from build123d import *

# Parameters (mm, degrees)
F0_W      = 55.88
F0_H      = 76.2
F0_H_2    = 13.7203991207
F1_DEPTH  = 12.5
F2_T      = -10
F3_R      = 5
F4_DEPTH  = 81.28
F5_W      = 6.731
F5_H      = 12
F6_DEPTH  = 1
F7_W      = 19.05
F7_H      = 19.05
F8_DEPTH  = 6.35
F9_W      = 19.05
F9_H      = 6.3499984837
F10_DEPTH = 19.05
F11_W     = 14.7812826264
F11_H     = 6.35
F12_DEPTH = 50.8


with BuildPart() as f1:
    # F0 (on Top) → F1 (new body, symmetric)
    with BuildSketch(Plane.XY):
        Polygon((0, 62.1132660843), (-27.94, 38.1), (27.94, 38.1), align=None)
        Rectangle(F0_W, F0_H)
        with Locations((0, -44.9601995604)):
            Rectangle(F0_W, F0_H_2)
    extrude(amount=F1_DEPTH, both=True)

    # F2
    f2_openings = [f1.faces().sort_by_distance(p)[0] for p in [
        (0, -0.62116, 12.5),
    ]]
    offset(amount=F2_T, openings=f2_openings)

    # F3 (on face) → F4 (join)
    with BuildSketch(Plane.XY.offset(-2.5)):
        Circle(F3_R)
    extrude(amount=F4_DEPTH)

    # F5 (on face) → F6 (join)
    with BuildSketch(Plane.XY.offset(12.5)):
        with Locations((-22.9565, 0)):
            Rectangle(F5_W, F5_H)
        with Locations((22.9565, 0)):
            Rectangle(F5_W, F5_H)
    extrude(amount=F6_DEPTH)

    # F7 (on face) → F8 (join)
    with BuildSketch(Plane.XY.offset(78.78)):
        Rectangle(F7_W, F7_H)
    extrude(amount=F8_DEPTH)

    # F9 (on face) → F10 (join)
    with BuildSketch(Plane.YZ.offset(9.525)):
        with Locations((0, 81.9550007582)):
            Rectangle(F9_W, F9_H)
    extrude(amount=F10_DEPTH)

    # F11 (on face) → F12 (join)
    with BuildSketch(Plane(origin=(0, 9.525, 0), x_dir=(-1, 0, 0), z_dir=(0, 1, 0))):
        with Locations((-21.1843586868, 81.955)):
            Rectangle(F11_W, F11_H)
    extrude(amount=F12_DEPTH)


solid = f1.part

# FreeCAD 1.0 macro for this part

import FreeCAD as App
import Part
import Sketcher
Q = App.Units.Quantity


def faces_at(feature, points):
    """Names of the faces that lie closest to the given points."""
    faces = feature.Shape.Faces
    near = lambda p: min(range(len(faces)), key=lambda i: faces[i].distToShape(Part.Vertex(*p))[0])
    return sorted({f"Face{near(p) + 1}" for p in points})


def add_polygon(sketch, points):
    """Adds a closed chain of lines whose ends are joined by coincident constraints."""
    first, n = sketch.GeometryCount, len(points)
    for a, b in zip(points, points[1:] + points[:1]):
        sketch.addGeometry(Part.LineSegment(App.Vector(*a, 0), App.Vector(*b, 0)), False)
    for i in range(n):
        sketch.addConstraint(Sketcher.Constraint("Coincident", first + i, 2, first + (i + 1) % n, 1))

doc = App.newDocument("Part")
body = doc.addObject("PartDesign::Body", "Body")

# Sketch on XY plane
sketch1 = doc.addObject("Sketcher::SketchObject", "Sketch")
body.addObject(sketch1)
sketch1.AttachmentSupport = (doc.XY_Plane, [""])
sketch1.MapMode = "FlatFace"
add_polygon(sketch1, [(0, 62.113266), (-27.94, 38.1), (-27.94, -51.820399), (27.94, -51.820399), (27.94, 38.1)])  # lines 0-4
sketch1.addConstraint([
    Sketcher.Constraint("Vertical", 1),
    Sketcher.Constraint("Horizontal", 2),
    Sketcher.Constraint("Vertical", 3),
    Sketcher.Constraint("Symmetric", 0, 2, 3, 2, -2),
    Sketcher.Constraint("PointOnObject", 4, 2, -2),
    Sketcher.Constraint("DistanceX", 2, 1, 2, 2, Q("2.2 in")),
    Sketcher.Constraint("DistanceY", -1, 1, 0, 2, Q("1.5 in")),
    Sketcher.Constraint("DistanceY", 1, 2, 1, 1, 89.920399),
    Sketcher.Constraint("Distance", 0, 36.841289),
])
pad1 = doc.addObject("PartDesign::Pad", "Pad")
body.addObject(pad1)
pad1.Profile = sketch1
pad1.Length = 25
pad1.Midplane = True
doc.recompute()

thickness = doc.addObject("PartDesign::Thickness", "Thickness")
body.addObject(thickness)
thickness.Base = (pad1, faces_at(pad1, [(0, 5.146, 12.5)]))
thickness.Value = 10
thickness.Reversed = True
thickness.Join = "Arc"

# Sketch on XY plane
sketch2 = doc.addObject("Sketcher::SketchObject", "Sketch001")
body.addObject(sketch2)
sketch2.AttachmentSupport = (doc.XY_Plane, [""])
sketch2.MapMode = "FlatFace"
sketch2.AttachmentOffset = App.Placement(App.Vector(0, 0, -2.5), App.Rotation())
sketch2.addGeometry(Part.Circle(App.Vector(0, 0, 0), App.Vector(0, 0, 1), 5), False)
sketch2.addConstraint([
    Sketcher.Constraint("Coincident", 0, 3, -1, 1),
    Sketcher.Constraint("Diameter", 0, 10.0),
])
pad2 = doc.addObject("PartDesign::Pad", "Pad001")
body.addObject(pad2)
pad2.Profile = sketch2
pad2.Length = Q("3.2 in")

# Sketch on XY plane
sketch3 = doc.addObject("Sketcher::SketchObject", "Sketch002")
body.addObject(sketch3)
sketch3.AttachmentSupport = (doc.XY_Plane, [""])
sketch3.MapMode = "FlatFace"
sketch3.AttachmentOffset = App.Placement(App.Vector(0, 0, 12.5), App.Rotation())
add_polygon(sketch3, [(-26.322, 6), (-26.322, -6), (-19.591, -6), (-19.591, 6)])  # lines 0-3
add_polygon(sketch3, [(19.591, 6), (19.591, -6), (26.322, -6), (26.322, 6)])  # lines 4-7
sketch3.addConstraint([
    Sketcher.Constraint("Vertical", 0),
    Sketcher.Constraint("Horizontal", 1),
    Sketcher.Constraint("Vertical", 2),
    Sketcher.Constraint("Horizontal", 3),
    Sketcher.Constraint("Vertical", 4),
    Sketcher.Constraint("Horizontal", 5),
    Sketcher.Constraint("Vertical", 6),
    Sketcher.Constraint("Horizontal", 7),
    Sketcher.Constraint("Symmetric", 2, 2, 4, 2, -1, 1),
    Sketcher.Constraint("Symmetric", 0, 2, 6, 2, -1, 1),
    Sketcher.Constraint("Horizontal", 1, 2, 4, 2),
    Sketcher.Constraint("DistanceX", 1, 1, 1, 2, Q("0.265 in")),
    Sketcher.Constraint("DistanceY", 0, 2, 0, 1, 12.0),
    Sketcher.Constraint("DistanceX", 0, 2, -1, 1, 26.322),
])
pad3 = doc.addObject("PartDesign::Pad", "Pad002")
body.addObject(pad3)
pad3.Profile = sketch3
pad3.Length = 1

# Sketch on XY plane
sketch4 = doc.addObject("Sketcher::SketchObject", "Sketch003")
body.addObject(sketch4)
sketch4.AttachmentSupport = (doc.XY_Plane, [""])
sketch4.MapMode = "FlatFace"
sketch4.AttachmentOffset = App.Placement(App.Vector(0, 0, 78.78), App.Rotation())
add_polygon(sketch4, [(-9.525, 9.525), (-9.525, -9.525), (9.525, -9.525), (9.525, 9.525)])  # lines 0-3
sketch4.addConstraint([
    Sketcher.Constraint("Vertical", 0),
    Sketcher.Constraint("Horizontal", 1),
    Sketcher.Constraint("Vertical", 2),
    Sketcher.Constraint("Horizontal", 3),
    Sketcher.Constraint("Symmetric", 0, 2, 2, 2, -1, 1),
    Sketcher.Constraint("Equal", 3, 0),
    Sketcher.Constraint("DistanceX", 1, 1, 1, 2, Q("0.75 in")),
])
pad4 = doc.addObject("PartDesign::Pad", "Pad003")
body.addObject(pad4)
pad4.Profile = sketch4
pad4.Length = Q("0.25 in")

# Sketch on YZ plane
sketch5 = doc.addObject("Sketcher::SketchObject", "Sketch004")
body.addObject(sketch5)
sketch5.AttachmentSupport = (doc.YZ_Plane, [""])
sketch5.MapMode = "FlatFace"
sketch5.AttachmentOffset = App.Placement(App.Vector(0, 0, 0.375 * 25.4), App.Rotation())
add_polygon(sketch5, [(-9.525, 85.13), (-9.525, 78.780002), (9.525, 78.780002), (9.525, 85.13)])  # lines 0-3
sketch5.addConstraint([
    Sketcher.Constraint("Vertical", 0),
    Sketcher.Constraint("Horizontal", 1),
    Sketcher.Constraint("Vertical", 2),
    Sketcher.Constraint("Horizontal", 3),
    Sketcher.Constraint("DistanceX", 1, 1, 1, 2, Q("0.75 in")),
    Sketcher.Constraint("DistanceY", 0, 2, 0, 1, Q("0.2499999 in")),
    Sketcher.Constraint("DistanceX", 0, 2, -1, 1, Q("0.375 in")),
    Sketcher.Constraint("DistanceY", -1, 1, 0, 2, 78.780002),
])
pad5 = doc.addObject("PartDesign::Pad", "Pad004")
body.addObject(pad5)
pad5.Profile = sketch5
pad5.Length = Q("0.75 in")

# Sketch on XZ plane
sketch6 = doc.addObject("Sketcher::SketchObject", "Sketch005")
body.addObject(sketch6)
sketch6.AttachmentSupport = (doc.XZ_Plane, [""])
sketch6.MapMode = "FlatFace"
sketch6.AttachmentOffset = App.Placement(App.Vector(0, 0, -0.375 * 25.4), App.Rotation())
add_polygon(sketch6, [(28.575, 85.13), (28.575, 78.78), (13.793717, 78.78), (13.793717, 85.13)])  # lines 0-3
sketch6.addConstraint([
    Sketcher.Constraint("Vertical", 0),
    Sketcher.Constraint("Horizontal", 1),
    Sketcher.Constraint("Vertical", 2),
    Sketcher.Constraint("Horizontal", 3),
    Sketcher.Constraint("DistanceY", 0, 2, 0, 1, Q("0.25 in")),
    Sketcher.Constraint("DistanceX", -1, 1, 0, 2, Q("1.125 in")),
    Sketcher.Constraint("DistanceY", -1, 1, 0, 2, 78.78),
    Sketcher.Constraint("DistanceX", 1, 2, 1, 1, 14.781283),
])
pad6 = doc.addObject("PartDesign::Pad", "Pad005")
body.addObject(pad6)
pad6.Profile = sketch6
pad6.Length = Q("2 in")
pad6.Reversed = True

doc.recompute()
